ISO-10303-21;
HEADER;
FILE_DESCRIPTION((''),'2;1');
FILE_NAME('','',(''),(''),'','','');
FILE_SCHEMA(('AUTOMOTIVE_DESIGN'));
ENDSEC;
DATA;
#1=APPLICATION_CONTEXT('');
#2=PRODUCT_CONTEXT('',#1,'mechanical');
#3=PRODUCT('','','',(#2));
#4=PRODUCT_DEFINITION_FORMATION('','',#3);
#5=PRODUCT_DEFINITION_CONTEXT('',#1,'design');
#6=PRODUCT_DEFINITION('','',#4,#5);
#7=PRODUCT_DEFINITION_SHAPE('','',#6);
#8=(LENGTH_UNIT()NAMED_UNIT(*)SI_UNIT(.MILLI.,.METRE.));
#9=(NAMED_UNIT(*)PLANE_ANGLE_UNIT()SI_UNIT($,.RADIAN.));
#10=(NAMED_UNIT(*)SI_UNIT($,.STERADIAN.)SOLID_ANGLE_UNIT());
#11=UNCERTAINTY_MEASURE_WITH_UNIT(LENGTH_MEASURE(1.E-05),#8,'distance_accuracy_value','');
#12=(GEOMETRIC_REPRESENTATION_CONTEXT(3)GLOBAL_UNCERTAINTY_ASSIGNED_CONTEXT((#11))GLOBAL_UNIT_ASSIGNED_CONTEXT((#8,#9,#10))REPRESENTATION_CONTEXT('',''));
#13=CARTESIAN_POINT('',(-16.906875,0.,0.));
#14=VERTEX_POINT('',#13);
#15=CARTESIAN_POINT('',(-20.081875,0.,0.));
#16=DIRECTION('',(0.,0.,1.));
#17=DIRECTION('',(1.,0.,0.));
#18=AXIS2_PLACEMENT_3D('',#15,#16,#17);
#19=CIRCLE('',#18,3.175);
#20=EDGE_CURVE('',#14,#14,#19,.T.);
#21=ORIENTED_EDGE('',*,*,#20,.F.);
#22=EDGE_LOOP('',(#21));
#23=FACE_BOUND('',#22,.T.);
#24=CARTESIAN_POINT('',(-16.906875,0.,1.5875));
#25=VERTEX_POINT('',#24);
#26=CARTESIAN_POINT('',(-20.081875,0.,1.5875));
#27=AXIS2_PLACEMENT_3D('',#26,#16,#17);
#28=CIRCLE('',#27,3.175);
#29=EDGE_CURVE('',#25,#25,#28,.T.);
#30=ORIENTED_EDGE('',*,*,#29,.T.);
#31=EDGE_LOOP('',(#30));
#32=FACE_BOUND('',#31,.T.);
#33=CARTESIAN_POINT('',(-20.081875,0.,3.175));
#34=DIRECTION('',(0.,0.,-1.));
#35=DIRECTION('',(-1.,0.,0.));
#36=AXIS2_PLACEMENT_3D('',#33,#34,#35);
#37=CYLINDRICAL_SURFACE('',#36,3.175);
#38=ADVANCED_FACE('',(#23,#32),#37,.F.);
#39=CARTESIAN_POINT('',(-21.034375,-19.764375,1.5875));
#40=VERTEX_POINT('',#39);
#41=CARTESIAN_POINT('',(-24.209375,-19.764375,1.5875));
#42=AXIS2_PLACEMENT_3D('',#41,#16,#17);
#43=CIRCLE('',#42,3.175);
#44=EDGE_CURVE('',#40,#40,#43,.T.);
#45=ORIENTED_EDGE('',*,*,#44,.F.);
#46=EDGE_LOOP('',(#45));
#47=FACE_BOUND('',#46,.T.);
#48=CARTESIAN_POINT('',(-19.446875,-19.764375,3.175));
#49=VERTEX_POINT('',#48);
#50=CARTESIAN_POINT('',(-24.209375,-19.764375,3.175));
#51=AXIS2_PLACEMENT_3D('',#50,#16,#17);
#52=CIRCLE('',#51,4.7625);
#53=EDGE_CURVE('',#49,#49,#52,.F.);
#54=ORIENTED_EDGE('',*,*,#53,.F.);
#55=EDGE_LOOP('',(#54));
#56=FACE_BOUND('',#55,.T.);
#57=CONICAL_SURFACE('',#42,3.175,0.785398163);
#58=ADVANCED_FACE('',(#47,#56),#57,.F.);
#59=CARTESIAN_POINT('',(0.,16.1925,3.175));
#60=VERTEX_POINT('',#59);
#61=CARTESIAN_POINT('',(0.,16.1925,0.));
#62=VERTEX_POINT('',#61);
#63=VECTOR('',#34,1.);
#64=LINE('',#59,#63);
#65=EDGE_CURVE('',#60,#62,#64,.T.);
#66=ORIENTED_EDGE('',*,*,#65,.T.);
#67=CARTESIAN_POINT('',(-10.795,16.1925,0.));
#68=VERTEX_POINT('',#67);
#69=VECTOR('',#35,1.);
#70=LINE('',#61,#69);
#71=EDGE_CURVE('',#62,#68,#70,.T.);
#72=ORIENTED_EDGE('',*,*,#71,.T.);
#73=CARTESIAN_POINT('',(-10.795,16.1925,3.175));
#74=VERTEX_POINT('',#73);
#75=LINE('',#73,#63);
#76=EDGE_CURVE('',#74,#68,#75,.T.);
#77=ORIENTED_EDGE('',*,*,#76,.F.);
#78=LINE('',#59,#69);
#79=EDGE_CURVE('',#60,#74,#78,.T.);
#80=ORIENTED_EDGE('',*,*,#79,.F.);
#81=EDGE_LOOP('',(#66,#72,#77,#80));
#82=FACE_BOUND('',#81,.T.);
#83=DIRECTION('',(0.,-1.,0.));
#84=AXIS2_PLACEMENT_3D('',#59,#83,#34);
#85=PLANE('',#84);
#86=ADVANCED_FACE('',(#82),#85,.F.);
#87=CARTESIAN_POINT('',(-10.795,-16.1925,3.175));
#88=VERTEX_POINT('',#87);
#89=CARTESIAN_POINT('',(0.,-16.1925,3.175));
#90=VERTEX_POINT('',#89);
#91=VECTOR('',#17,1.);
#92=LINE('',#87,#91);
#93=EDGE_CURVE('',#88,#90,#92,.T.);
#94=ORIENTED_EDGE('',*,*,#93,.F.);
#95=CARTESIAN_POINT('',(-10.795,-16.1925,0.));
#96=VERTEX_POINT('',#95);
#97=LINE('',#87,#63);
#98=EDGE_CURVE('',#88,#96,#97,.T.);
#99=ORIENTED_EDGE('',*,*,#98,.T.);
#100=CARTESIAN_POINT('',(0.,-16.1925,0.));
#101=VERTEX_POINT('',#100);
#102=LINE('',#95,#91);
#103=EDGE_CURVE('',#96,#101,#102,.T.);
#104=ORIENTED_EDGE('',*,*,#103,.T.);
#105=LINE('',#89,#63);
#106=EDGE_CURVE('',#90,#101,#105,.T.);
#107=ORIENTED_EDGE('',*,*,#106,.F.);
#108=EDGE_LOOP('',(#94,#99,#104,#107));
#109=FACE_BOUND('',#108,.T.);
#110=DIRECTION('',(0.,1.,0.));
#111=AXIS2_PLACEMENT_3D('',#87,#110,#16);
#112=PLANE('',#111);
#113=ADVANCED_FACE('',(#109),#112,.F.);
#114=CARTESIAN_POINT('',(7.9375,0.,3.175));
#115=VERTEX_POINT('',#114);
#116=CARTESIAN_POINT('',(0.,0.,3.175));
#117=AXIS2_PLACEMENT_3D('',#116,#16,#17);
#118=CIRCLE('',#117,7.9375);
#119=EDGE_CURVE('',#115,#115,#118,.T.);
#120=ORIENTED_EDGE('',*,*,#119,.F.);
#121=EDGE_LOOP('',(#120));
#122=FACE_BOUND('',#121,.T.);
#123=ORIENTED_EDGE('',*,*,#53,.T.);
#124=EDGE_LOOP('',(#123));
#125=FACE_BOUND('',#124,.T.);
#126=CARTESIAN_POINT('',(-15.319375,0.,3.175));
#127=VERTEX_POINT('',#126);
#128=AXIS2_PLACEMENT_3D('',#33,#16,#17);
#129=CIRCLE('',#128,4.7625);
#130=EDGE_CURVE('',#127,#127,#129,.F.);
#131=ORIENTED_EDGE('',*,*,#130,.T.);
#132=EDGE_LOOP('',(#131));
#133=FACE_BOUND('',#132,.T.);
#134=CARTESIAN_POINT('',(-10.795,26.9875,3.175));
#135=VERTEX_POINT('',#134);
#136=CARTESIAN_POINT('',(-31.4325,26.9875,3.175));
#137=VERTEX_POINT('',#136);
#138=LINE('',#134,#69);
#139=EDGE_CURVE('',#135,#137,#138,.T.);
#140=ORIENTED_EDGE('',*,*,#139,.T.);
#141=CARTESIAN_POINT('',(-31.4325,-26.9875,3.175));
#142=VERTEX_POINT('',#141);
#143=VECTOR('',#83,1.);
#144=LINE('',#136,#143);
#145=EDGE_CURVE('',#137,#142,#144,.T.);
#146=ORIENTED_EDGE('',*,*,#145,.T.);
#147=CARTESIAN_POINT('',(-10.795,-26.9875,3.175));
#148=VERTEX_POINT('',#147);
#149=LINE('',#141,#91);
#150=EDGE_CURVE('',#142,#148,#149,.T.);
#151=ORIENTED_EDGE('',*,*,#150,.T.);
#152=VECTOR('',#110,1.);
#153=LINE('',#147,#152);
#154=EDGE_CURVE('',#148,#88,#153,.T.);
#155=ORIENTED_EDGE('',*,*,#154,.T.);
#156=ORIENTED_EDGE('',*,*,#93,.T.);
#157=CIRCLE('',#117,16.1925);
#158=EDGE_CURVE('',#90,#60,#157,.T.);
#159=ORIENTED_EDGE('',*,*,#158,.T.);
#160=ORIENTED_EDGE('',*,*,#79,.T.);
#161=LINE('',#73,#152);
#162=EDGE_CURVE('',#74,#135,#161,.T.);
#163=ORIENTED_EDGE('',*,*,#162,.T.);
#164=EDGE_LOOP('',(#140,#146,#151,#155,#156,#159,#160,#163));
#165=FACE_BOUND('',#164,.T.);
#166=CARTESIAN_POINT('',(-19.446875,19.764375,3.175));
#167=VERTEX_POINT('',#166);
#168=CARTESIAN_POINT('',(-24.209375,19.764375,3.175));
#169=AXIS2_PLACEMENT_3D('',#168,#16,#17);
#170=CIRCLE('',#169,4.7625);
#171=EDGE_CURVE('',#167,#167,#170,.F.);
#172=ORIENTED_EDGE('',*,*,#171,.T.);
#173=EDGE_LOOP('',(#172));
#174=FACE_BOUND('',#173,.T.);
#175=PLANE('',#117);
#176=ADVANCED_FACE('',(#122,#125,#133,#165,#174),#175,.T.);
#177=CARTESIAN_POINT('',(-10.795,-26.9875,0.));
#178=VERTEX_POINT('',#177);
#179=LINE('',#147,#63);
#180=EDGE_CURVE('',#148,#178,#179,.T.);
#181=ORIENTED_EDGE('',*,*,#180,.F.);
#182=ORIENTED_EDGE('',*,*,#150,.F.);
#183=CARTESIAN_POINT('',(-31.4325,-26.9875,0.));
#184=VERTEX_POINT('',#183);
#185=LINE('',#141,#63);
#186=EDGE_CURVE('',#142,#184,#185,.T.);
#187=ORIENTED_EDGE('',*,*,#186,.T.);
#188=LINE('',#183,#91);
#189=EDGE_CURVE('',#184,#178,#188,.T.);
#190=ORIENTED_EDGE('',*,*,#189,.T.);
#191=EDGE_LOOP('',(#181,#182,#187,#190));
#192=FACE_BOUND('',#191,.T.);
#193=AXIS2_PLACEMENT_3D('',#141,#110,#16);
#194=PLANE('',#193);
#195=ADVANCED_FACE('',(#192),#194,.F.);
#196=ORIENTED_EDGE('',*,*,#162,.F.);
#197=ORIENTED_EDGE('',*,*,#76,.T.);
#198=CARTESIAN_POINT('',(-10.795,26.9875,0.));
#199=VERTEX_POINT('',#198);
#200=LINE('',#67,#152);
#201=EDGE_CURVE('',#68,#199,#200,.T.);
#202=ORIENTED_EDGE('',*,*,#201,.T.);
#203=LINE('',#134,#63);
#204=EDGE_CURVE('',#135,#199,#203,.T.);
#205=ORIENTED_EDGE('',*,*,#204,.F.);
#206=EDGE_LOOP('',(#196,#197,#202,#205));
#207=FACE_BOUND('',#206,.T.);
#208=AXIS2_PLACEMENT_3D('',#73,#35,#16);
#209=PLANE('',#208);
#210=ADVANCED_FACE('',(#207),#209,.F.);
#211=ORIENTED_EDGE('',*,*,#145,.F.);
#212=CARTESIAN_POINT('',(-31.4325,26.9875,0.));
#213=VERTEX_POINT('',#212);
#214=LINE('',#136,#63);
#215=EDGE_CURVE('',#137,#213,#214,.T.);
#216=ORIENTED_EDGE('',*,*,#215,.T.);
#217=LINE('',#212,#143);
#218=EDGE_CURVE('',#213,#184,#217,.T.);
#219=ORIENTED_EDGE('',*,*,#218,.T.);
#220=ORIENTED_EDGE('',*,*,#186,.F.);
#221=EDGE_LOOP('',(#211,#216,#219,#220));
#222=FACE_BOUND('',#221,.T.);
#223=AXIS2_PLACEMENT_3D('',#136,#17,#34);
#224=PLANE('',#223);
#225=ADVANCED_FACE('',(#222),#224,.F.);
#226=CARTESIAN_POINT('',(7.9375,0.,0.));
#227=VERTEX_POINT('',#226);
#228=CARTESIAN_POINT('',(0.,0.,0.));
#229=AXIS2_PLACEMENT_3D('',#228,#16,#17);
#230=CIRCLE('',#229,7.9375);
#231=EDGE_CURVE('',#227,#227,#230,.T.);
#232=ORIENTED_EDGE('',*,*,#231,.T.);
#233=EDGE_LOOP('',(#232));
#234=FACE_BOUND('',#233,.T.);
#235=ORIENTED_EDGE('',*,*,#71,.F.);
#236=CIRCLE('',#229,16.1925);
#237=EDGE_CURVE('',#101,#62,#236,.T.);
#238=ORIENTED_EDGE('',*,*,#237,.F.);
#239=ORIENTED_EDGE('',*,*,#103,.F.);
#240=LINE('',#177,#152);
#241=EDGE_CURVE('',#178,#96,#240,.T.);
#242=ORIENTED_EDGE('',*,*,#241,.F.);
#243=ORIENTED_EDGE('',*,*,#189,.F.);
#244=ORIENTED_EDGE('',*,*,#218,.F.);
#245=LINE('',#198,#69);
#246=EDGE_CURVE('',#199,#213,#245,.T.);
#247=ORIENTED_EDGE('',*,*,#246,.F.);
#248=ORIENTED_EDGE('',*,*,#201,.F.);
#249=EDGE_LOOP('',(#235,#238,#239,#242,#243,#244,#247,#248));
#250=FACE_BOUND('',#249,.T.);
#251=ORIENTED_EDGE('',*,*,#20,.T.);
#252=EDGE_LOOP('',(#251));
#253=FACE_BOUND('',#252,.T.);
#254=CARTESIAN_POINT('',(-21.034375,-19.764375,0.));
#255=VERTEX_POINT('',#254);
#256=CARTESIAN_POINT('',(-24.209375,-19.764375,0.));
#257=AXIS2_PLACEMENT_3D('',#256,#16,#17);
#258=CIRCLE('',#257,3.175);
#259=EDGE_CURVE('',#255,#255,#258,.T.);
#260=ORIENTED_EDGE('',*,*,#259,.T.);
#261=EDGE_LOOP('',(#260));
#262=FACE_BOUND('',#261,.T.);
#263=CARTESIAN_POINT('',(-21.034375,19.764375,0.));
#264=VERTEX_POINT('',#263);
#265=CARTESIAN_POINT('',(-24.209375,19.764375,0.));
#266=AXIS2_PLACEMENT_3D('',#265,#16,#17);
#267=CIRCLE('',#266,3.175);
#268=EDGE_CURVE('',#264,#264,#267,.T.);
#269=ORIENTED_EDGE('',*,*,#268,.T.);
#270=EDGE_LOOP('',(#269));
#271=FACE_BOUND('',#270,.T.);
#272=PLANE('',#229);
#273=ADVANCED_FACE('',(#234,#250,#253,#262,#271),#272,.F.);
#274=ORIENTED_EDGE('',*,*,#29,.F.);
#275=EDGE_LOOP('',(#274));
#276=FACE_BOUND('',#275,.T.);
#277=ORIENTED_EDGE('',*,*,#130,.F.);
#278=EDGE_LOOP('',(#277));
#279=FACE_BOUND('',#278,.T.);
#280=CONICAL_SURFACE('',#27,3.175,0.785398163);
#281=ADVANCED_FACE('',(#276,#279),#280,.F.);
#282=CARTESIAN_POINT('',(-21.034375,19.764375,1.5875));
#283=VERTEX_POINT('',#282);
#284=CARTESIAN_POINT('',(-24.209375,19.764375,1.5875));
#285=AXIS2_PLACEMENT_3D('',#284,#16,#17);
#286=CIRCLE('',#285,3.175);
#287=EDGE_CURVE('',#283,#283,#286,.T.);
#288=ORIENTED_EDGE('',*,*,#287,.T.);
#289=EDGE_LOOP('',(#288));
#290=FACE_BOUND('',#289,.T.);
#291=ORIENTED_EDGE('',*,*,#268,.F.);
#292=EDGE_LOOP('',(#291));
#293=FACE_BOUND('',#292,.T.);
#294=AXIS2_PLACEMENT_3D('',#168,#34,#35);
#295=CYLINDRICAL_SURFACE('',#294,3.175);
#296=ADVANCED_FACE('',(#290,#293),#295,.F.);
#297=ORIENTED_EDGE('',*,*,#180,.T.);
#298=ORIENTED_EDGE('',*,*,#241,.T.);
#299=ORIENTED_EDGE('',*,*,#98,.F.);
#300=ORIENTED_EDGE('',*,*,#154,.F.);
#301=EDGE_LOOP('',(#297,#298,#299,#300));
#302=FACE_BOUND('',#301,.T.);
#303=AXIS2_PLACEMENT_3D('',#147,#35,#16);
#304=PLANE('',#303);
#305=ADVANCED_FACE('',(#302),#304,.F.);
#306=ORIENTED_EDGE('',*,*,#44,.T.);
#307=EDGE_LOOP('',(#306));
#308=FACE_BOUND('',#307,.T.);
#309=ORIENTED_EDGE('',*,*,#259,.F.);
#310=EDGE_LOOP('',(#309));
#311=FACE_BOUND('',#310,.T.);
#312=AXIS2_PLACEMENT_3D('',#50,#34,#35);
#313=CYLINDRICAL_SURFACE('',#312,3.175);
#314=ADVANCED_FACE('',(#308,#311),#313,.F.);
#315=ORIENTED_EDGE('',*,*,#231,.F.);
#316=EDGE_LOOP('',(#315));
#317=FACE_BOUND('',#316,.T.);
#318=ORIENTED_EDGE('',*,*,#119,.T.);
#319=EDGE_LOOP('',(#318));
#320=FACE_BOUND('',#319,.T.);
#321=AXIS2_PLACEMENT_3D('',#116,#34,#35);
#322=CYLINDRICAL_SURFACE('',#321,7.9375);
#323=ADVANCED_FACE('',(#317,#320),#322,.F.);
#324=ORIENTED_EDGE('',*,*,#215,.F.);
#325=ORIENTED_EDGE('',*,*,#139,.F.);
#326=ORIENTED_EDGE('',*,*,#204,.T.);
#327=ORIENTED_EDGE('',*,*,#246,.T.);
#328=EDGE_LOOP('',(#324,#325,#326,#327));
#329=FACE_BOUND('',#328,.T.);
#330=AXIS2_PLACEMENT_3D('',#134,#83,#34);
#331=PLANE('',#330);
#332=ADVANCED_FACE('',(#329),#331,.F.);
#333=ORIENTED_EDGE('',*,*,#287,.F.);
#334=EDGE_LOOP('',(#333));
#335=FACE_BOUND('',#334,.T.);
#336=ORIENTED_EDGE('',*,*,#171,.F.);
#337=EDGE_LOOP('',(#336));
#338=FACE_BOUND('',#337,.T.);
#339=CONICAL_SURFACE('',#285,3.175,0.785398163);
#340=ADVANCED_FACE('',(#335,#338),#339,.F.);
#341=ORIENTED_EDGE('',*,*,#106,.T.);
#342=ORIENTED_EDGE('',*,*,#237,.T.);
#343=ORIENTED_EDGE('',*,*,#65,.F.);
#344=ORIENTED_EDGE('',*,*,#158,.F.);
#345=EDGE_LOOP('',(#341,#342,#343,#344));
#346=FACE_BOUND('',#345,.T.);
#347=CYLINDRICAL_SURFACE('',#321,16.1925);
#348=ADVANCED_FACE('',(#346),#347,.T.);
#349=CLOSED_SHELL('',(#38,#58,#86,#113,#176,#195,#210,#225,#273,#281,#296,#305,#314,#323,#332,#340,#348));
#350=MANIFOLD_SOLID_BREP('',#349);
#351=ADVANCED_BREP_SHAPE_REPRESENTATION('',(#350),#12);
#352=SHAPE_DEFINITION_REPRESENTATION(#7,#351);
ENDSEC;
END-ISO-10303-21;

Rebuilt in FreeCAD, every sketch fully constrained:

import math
import FreeCAD as App
import Part
import Sketcher
Q = App.Units.Quantity


def edges_at(feature, points):
    """Names of the edges that pass closest to the given points."""
    edges = feature.Shape.Edges
    near = lambda p: min(range(len(edges)), key=lambda i: edges[i].distToShape(Part.Vertex(*p))[0])
    return sorted({f"Edge{near(p) + 1}" for p in points})

doc = App.newDocument("Part")
body = doc.addObject("PartDesign::Body", "Body")

# Sketch on XY plane
sketch1 = body.newObject("Sketcher::SketchObject", "Sketch")
sketch1.AttachmentSupport = (doc.getObject("XY_Plane"), [""])
sketch1.MapMode = "FlatFace"
sketch1.addGeometry([
    Part.LineSegment(App.Vector(0, 16.1925, 0), App.Vector(-10.795, 16.1925, 0)),  # 0
    Part.LineSegment(App.Vector(-10.795, 16.1925, 0), App.Vector(-10.795, 26.9875, 0)),  # 1
    Part.LineSegment(App.Vector(-10.795, 26.9875, 0), App.Vector(-31.4325, 26.9875, 0)),  # 2
    Part.LineSegment(App.Vector(-31.4325, 26.9875, 0), App.Vector(-31.4325, -26.9875, 0)),  # 3
    Part.LineSegment(App.Vector(-31.4325, -26.9875, 0), App.Vector(-10.795, -26.9875, 0)),  # 4
    Part.LineSegment(App.Vector(-10.795, -26.9875, 0), App.Vector(-10.795, -16.1925, 0)),  # 5
    Part.LineSegment(App.Vector(-10.795, -16.1925, 0), App.Vector(0, -16.1925, 0)),  # 6
    Part.ArcOfCircle(Part.Circle(App.Vector(0, 0, 0), App.Vector(0, 0, 1), 16.1925), math.radians(-90), math.radians(90)),  # 7
    Part.Circle(App.Vector(-24.209375, -19.764375, 0), App.Vector(0, 0, 1), 3.175),  # 8
    Part.Circle(App.Vector(-20.081875, 0, 0), App.Vector(0, 0, 1), 3.175),  # 9
    Part.Circle(App.Vector(-24.209375, 19.764375, 0), App.Vector(0, 0, 1), 3.175),  # 10
    Part.Circle(App.Vector(0, 0, 0), App.Vector(0, 0, 1), 7.9375),  # 11
], False)
sketch1.addConstraint([
    Sketcher.Constraint("Coincident", 0, 2, 1, 1),
    Sketcher.Constraint("Coincident", 1, 2, 2, 1),
    Sketcher.Constraint("Coincident", 2, 2, 3, 1),
    Sketcher.Constraint("Coincident", 3, 2, 4, 1),
    Sketcher.Constraint("Coincident", 4, 2, 5, 1),
    Sketcher.Constraint("Coincident", 5, 2, 6, 1),
    Sketcher.Constraint("Tangent", 6, 2, 7, 1),
    Sketcher.Constraint("Tangent", 7, 2, 0, 1),
    Sketcher.Constraint("Horizontal", 0),
    Sketcher.Constraint("Vertical", 1),
    Sketcher.Constraint("Horizontal", 2),
    Sketcher.Constraint("Vertical", 3),
    Sketcher.Constraint("Horizontal", 4),
    Sketcher.Constraint("Vertical", 5),
    Sketcher.Constraint("Horizontal", 6),
    Sketcher.Constraint("Coincident", 7, 3, -1, 1),
    Sketcher.Constraint("Coincident", 11, 3, -1, 1),
    Sketcher.Constraint("Equal", 8, 9),
    Sketcher.Constraint("Equal", 9, 10),
    Sketcher.Constraint("Symmetric", 8, 3, 10, 3, -1),
    Sketcher.Constraint("Symmetric", 1, 2, 4, 2, -1),
    Sketcher.Constraint("PointOnObject", 9, 3, -1),
    Sketcher.Constraint("Equal", 6, 1),
    Sketcher.Constraint("Diameter", 8, Q("0.25 in")),
    Sketcher.Constraint("Diameter", 11, Q("0.625 in")),
    Sketcher.Constraint("Radius", 7, Q("0.6375 in")),
    Sketcher.Constraint("DistanceX", 0, 2, 0, 1, Q("0.425 in")),
    Sketcher.Constraint("DistanceX", 2, 2, 2, 1, Q("0.8125 in")),
    Sketcher.Constraint("DistanceX", 8, 3, -1, 1, Q("0.953125 in")),
    Sketcher.Constraint("DistanceY", 0, 2, 10, 3, Q("0.140625 in")),
    Sketcher.Constraint("DistanceX", 8, 3, 9, 3, Q("0.1625 in")),
])
pad1 = body.newObject("PartDesign::Pad", "Pad")
pad1.Profile = sketch1
pad1.Length = Q("0.125 in")
doc.recompute()

chamfer = body.newObject("PartDesign::Chamfer", "Chamfer")
chamfer.Base = (pad1, edges_at(pad1, [(-27.384, 19.764, 3.175), (-23.257, 0, 3.175), (-27.384, -19.764, 3.175)]))
chamfer.Size = Q("0.0625 in")

doc.recompute()
